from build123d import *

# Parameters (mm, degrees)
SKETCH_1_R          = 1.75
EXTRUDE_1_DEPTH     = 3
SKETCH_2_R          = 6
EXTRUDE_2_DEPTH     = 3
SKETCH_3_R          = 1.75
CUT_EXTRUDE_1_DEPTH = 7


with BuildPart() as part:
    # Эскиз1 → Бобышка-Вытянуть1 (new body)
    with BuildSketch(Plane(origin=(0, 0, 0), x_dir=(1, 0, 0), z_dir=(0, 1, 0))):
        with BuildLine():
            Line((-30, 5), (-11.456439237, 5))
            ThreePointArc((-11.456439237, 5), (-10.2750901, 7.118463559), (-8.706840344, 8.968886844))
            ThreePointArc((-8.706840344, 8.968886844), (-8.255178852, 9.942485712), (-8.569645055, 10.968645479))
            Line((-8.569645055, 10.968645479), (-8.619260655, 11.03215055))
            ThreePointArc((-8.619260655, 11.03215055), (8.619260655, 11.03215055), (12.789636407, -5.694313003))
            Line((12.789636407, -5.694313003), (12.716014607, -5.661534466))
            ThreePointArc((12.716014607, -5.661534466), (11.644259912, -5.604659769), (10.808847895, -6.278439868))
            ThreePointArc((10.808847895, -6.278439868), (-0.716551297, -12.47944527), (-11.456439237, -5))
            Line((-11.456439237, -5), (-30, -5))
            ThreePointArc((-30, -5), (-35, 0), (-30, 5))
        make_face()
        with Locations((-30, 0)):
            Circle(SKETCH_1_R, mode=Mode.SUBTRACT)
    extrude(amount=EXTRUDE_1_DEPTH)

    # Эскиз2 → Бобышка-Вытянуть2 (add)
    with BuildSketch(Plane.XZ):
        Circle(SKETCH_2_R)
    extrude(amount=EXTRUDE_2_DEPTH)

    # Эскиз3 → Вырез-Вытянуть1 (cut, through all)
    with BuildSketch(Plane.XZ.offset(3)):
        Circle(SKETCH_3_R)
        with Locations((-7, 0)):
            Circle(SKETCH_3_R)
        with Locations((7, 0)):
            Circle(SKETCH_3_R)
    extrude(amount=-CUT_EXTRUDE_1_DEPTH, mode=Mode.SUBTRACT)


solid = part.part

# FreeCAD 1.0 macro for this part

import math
import FreeCAD as App
import Part
import Sketcher

V = App.Vector
Q = App.Units.Quantity

doc = App.newDocument("Part")
body = doc.addObject("PartDesign::Body", "Body")

# Sketch on XZ plane
sketch1 = body.newObject("Sketcher::SketchObject", "Sketch")
sketch1.AttachmentSupport = (doc.getObject("XZ_Plane"), [""])
sketch1.MapMode = "FlatFace"
sketch1.addGeometry([
    Part.LineSegment(V(-11.46, -5, 0), V(-30, -5, 0)),  # 0
    Part.ArcOfCircle(Part.Circle(V(-30, 0, 0), V(0, 0, 1), 5), math.radians(90), math.radians(270)),  # 1
    Part.LineSegment(V(-30, 5, 0), V(-11.46, 5, 0)),  # 2
    Part.ArcOfCircle(Part.Circle(V(0, 0, 0), V(0, 0, 1), 12.5), math.radians(30), math.radians(156)),  # 3
    Part.ArcOfCircle(Part.Circle(V(12.11, 7.03, 0), V(0, 0, 1), 1.5), math.radians(-150), math.radians(-66)),  # 4
    Part.LineSegment(V(12.72, 5.66, 0), V(12.79, 5.69, 0)),  # 5
    Part.ArcOfCircle(Part.Circle(V(0, 0, 0), V(0, 0, 1), 14), math.radians(-128), math.radians(24)),  # 6
    Part.LineSegment(V(-8.62, -11.03, 0), V(-8.57, -10.97, 0)),  # 7
    Part.ArcOfCircle(Part.Circle(V(-9.75, -10.05, 0), V(0, 0, 1), 1.5), math.radians(-38), math.radians(46)),  # 8
    Part.ArcOfCircle(Part.Circle(V(0, 0, 0), V(0, 0, 1), 12.5), math.radians(-156), math.radians(-134)),  # 9
    Part.Circle(V(-30, 0, 0), V(0, 0, 1), 1.75),  # 10
], False)
sketch1.addConstraint([
    Sketcher.Constraint("Tangent", 0, 2, 1, 2),
    Sketcher.Constraint("Tangent", 1, 1, 2, 1),
    Sketcher.Constraint("Coincident", 2, 2, 3, 2),
    Sketcher.Constraint("Tangent", 3, 1, 4, 1),
    Sketcher.Constraint("Tangent", 4, 2, 5, 1),
    Sketcher.Constraint("Coincident", 5, 2, 6, 2),
    Sketcher.Constraint("Coincident", 6, 1, 7, 1),
    Sketcher.Constraint("Tangent", 7, 2, 8, 1),
    Sketcher.Constraint("Tangent", 8, 2, 9, 2),
    Sketcher.Constraint("Coincident", 9, 1, 0, 1),
    Sketcher.Constraint("Horizontal", 0),
    Sketcher.Constraint("Horizontal", 2),
    Sketcher.Constraint("Coincident", 3, 3, -1, 1),
    Sketcher.Constraint("Coincident", 6, 3, -1, 1),
    Sketcher.Constraint("Coincident", 9, 3, -1, 1),
    Sketcher.Constraint("Coincident", 10, 3, 1, 3),
    Sketcher.Constraint("Equal", 4, 8),
    Sketcher.Constraint("Equal", 3, 9),
    Sketcher.Constraint("PointOnObject", 1, 3, -1),
    Sketcher.Constraint("Equal", 5, 7),
    Sketcher.Constraint("Radius", 1, Q("5 mm")),
    Sketcher.Constraint("Radius", 6, Q("14 mm")),
    Sketcher.Constraint("Diameter", 10, Q("3.5 mm")),
    Sketcher.Constraint("Radius", 3, Q("12.5 mm")),
    Sketcher.Constraint("Radius", 4, Q("1.5 mm")),
    Sketcher.Constraint("Angle", 5, Q("24 deg")),
    Sketcher.Constraint("Angle", 7, Q("52 deg")),
    Sketcher.Constraint("DistanceX", 1, 3, -1, 1, Q("30 mm")),
    Sketcher.Constraint("DistanceX", 8, 3, 6, 1, Q("1.132401 mm")),
])
pad1 = body.newObject("PartDesign::Pad", "Pad")
pad1.Profile = sketch1
pad1.Length = 3
pad1.Reversed = True

# Sketch on XZ plane
sketch2 = body.newObject("Sketcher::SketchObject", "Sketch001")
sketch2.AttachmentSupport = (doc.getObject("XZ_Plane"), [""])
sketch2.MapMode = "FlatFace"
sketch2.addGeometry(Part.Circle(V(0, 0, 0), V(0, 0, 1), 6), False)
sketch2.addConstraint([
    Sketcher.Constraint("Coincident", 0, 3, -1, 1),
    Sketcher.Constraint("Diameter", 0, Q("12 mm")),
])
pad2 = body.newObject("PartDesign::Pad", "Pad001")
pad2.Profile = sketch2
pad2.Length = 3

# Sketch on XZ plane
sketch3 = body.newObject("Sketcher::SketchObject", "Sketch002")
sketch3.AttachmentSupport = (doc.getObject("XZ_Plane"), [""])
sketch3.MapMode = "FlatFace"
sketch3.AttachmentOffset = App.Placement(V(0, 0, 3), App.Rotation())
sketch3.addGeometry([
    Part.Circle(V(0, 0, 0), V(0, 0, 1), 1.8),
    Part.Circle(V(-7, 0, 0), V(0, 0, 1), 1.8),
    Part.Circle(V(7, 0, 0), V(0, 0, 1), 1.8),
], False)
sketch3.addConstraint([
    Sketcher.Constraint("Coincident", 0, 3, -1, 1),
    Sketcher.Constraint("Equal", 0, 1),
    Sketcher.Constraint("Equal", 1, 2),
    Sketcher.Constraint("Symmetric", 1, 3, 2, 3, -1, 1),
    Sketcher.Constraint("PointOnObject", 1, 3, -1),
    Sketcher.Constraint("Diameter", 0, Q("3.5 mm")),
    Sketcher.Constraint("DistanceX", 1, 3, -1, 1, Q("7 mm")),
])
pocket1 = body.newObject("PartDesign::Pocket", "Pocket")
pocket1.Profile = sketch3
pocket1.Type = "ThroughAll"

doc.recompute()
